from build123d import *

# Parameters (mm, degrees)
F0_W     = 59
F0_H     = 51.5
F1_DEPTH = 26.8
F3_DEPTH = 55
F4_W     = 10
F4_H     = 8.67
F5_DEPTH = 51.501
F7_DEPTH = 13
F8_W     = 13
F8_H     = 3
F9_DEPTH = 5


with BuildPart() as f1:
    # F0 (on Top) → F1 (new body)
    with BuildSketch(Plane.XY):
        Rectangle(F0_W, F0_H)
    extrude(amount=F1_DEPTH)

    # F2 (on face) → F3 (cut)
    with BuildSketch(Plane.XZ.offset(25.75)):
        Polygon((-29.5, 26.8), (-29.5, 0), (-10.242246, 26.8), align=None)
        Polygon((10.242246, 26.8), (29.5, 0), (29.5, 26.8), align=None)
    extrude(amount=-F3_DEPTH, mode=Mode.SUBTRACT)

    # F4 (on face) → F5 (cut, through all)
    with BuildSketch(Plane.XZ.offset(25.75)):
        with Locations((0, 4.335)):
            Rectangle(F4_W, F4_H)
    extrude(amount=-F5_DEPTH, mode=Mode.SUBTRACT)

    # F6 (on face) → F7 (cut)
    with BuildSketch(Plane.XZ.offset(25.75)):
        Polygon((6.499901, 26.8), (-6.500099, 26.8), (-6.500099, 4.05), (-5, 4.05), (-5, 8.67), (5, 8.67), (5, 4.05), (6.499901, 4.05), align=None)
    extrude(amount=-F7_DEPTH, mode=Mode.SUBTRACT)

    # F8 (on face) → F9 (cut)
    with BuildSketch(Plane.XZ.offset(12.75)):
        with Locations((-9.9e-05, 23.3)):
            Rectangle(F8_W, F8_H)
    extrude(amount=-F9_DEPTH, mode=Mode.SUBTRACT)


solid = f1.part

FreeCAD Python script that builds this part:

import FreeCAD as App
import Part
import Sketcher
from FreeCAD import Vector
Q = App.Units.Quantity

doc = App.newDocument("Part")
params = doc.addObject("Spreadsheet::Sheet", "Params")
for row, (alias, value) in enumerate([
    ("sketch1_width", "59 mm"),
    ("sketch1_height", "51.5 mm"),
    ("pad1_length", "26.8 mm"),
    ("sketch2_height", "26.8 mm"),
    ("pocket1_length", "55 mm"),
    ("sketch3_width", "10 mm"),
    ("sketch3_height", "8.67 mm"),
    ("sketch4_width", "13 mm"),
    ("sketch4_width2", "10 mm"),
    ("sketch4_height", "22.75 mm"),
    ("sketch4_height2", "4.62 mm"),
    ("pocket3_length", "13 mm"),
    ("sketch5_width", "13 mm"),
    ("sketch5_height", "3 mm"),
    ("pocket4_length", "5 mm"),
], start=1):
    params.set(f"A{row}", alias)
    params.set(f"B{row}", "=" + value)
    params.setAlias(f"B{row}", alias)

body = doc.addObject("PartDesign::Body", "Body")

# Sketch on XY plane
sketch1 = doc.addObject("Sketcher::SketchObject", "Sketch")
body.addObject(sketch1)
sketch1.AttachmentSupport = (doc.XY_Plane, [""])
sketch1.MapMode = "FlatFace"
sketch1.addGeometry([
    Part.LineSegment(Vector(-30, 26, 0), Vector(-30, -26, 0)),
    Part.LineSegment(Vector(-30, -26, 0), Vector(30, -26, 0)),
    Part.LineSegment(Vector(30, -26, 0), Vector(30, 26, 0)),
    Part.LineSegment(Vector(30, 26, 0), Vector(-30, 26, 0)),
], False)
sketch1.addConstraint([
    Sketcher.Constraint("Coincident", 0, 2, 1, 1),
    Sketcher.Constraint("Coincident", 1, 2, 2, 1),
    Sketcher.Constraint("Coincident", 2, 2, 3, 1),
    Sketcher.Constraint("Coincident", 3, 2, 0, 1),
    Sketcher.Constraint("Vertical", 0),
    Sketcher.Constraint("Horizontal", 1),
    Sketcher.Constraint("Vertical", 2),
    Sketcher.Constraint("Horizontal", 3),
    Sketcher.Constraint("Symmetric", 0, 2, 2, 2, -1, 1),
    Sketcher.Constraint("DistanceX", 1, 1, 1, 2, 59.0),
    Sketcher.Constraint("DistanceY", 0, 2, 0, 1, 51.5),
])
sketch1.setExpression("Constraints[9]", "Params.sketch1_width")
sketch1.setExpression("Constraints[10]", "Params.sketch1_height")
pad1 = doc.addObject("PartDesign::Pad", "Pad")
body.addObject(pad1)
pad1.Profile = sketch1
pad1.setExpression("Length", "Params.pad1_length")

# Sketch on XZ plane
sketch2 = doc.addObject("Sketcher::SketchObject", "Sketch001")
body.addObject(sketch2)
sketch2.AttachmentSupport = (doc.XZ_Plane, [""])
sketch2.MapMode = "FlatFace"
sketch2.AttachmentOffset = App.Placement(Vector(0, 0, 25.75), App.Rotation())
sketch2.addGeometry([
    Part.LineSegment(Vector(-30, 27, 0), Vector(-30, 0, 0)),  # 0
    Part.LineSegment(Vector(-30, 0, 0), Vector(-10, 27, 0)),  # 1
    Part.LineSegment(Vector(-10, 27, 0), Vector(-30, 27, 0)),  # 2
    Part.LineSegment(Vector(10, 27, 0), Vector(30, 0, 0)),  # 3
    Part.LineSegment(Vector(30, 0, 0), Vector(30, 27, 0)),  # 4
    Part.LineSegment(Vector(30, 27, 0), Vector(10, 27, 0)),  # 5
], False)
sketch2.addConstraint([
    Sketcher.Constraint("Coincident", 0, 2, 1, 1),
    Sketcher.Constraint("Coincident", 1, 2, 2, 1),
    Sketcher.Constraint("Coincident", 2, 2, 0, 1),
    Sketcher.Constraint("Coincident", 3, 2, 4, 1),
    Sketcher.Constraint("Coincident", 4, 2, 5, 1),
    Sketcher.Constraint("Coincident", 5, 2, 3, 1),
    Sketcher.Constraint("Vertical", 0),
    Sketcher.Constraint("Horizontal", 2),
    Sketcher.Constraint("Vertical", 4),
    Sketcher.Constraint("Horizontal", 5),
    Sketcher.Constraint("Symmetric", 0, 2, 3, 2, -1, 1),
    Sketcher.Constraint("Symmetric", 1, 2, 5, 2, -2),
    Sketcher.Constraint("PointOnObject", 0, 2, -1),
    Sketcher.Constraint("DistanceY", 0, 2, 0, 1, 26.8),
    Sketcher.Constraint("Angle", 1, Q("54.299999 deg")),
    Sketcher.Constraint("DistanceX", 0, 2, 3, 2, 59.0),
])
sketch2.setExpression("Constraints[13]", "Params.sketch2_height")
pocket1 = doc.addObject("PartDesign::Pocket", "Pocket")
body.addObject(pocket1)
pocket1.Profile = sketch2
pocket1.setExpression("Length", "Params.pocket1_length")

# Sketch on XZ plane
sketch3 = doc.addObject("Sketcher::SketchObject", "Sketch002")
body.addObject(sketch3)
sketch3.AttachmentSupport = (doc.XZ_Plane, [""])
sketch3.MapMode = "FlatFace"
sketch3.AttachmentOffset = App.Placement(Vector(0, 0, 25.75), App.Rotation())
sketch3.addGeometry([
    Part.LineSegment(Vector(-5, 9, 0), Vector(-5, 0, 0)),
    Part.LineSegment(Vector(-5, 0, 0), Vector(5, 0, 0)),
    Part.LineSegment(Vector(5, 0, 0), Vector(5, 9, 0)),
    Part.LineSegment(Vector(5, 9, 0), Vector(-5, 9, 0)),
], False)
sketch3.addConstraint([
    Sketcher.Constraint("Coincident", 0, 2, 1, 1),
    Sketcher.Constraint("Coincident", 1, 2, 2, 1),
    Sketcher.Constraint("Coincident", 2, 2, 3, 1),
    Sketcher.Constraint("Coincident", 3, 2, 0, 1),
    Sketcher.Constraint("Vertical", 0),
    Sketcher.Constraint("Horizontal", 1),
    Sketcher.Constraint("Vertical", 2),
    Sketcher.Constraint("Horizontal", 3),
    Sketcher.Constraint("Symmetric", 0, 2, 1, 2, -1, 1),
    Sketcher.Constraint("DistanceX", 1, 1, 1, 2, 10.0),
    Sketcher.Constraint("DistanceY", 0, 2, 0, 1, 8.67),
])
sketch3.setExpression("Constraints[9]", "Params.sketch3_width")
sketch3.setExpression("Constraints[10]", "Params.sketch3_height")
pocket2 = doc.addObject("PartDesign::Pocket", "Pocket001")
body.addObject(pocket2)
pocket2.Profile = sketch3
pocket2.Type = "ThroughAll"

# Sketch on XZ plane
sketch4 = doc.addObject("Sketcher::SketchObject", "Sketch003")
body.addObject(sketch4)
sketch4.AttachmentSupport = (doc.XZ_Plane, [""])
sketch4.MapMode = "FlatFace"
sketch4.AttachmentOffset = App.Placement(Vector(0, 0, 25.75), App.Rotation())
sketch4.addGeometry([
    Part.LineSegment(Vector(6.5, 26.8, 0), Vector(-6.5, 26.8, 0)),  # 0
    Part.LineSegment(Vector(-6.5, 26.8, 0), Vector(-6.5, 4, 0)),  # 1
    Part.LineSegment(Vector(-6.5, 4, 0), Vector(-5, 4, 0)),  # 2
    Part.LineSegment(Vector(-5, 4, 0), Vector(-5, 8.7, 0)),  # 3
    Part.LineSegment(Vector(-5, 8.7, 0), Vector(5, 8.7, 0)),  # 4
    Part.LineSegment(Vector(5, 8.7, 0), Vector(5, 4, 0)),  # 5
    Part.LineSegment(Vector(5, 4, 0), Vector(6.5, 4, 0)),  # 6
    Part.LineSegment(Vector(6.5, 4, 0), Vector(6.5, 26.8, 0)),  # 7
], False)
sketch4.addConstraint([
    Sketcher.Constraint("Coincident", 0, 2, 1, 1),
    Sketcher.Constraint("Coincident", 1, 2, 2, 1),
    Sketcher.Constraint("Coincident", 2, 2, 3, 1),
    Sketcher.Constraint("Coincident", 3, 2, 4, 1),
    Sketcher.Constraint("Coincident", 4, 2, 5, 1),
    Sketcher.Constraint("Coincident", 5, 2, 6, 1),
    Sketcher.Constraint("Coincident", 6, 2, 7, 1),
    Sketcher.Constraint("Coincident", 7, 2, 0, 1),
    Sketcher.Constraint("Horizontal", 0),
    Sketcher.Constraint("Vertical", 1),
    Sketcher.Constraint("Horizontal", 2),
    Sketcher.Constraint("Vertical", 3),
    Sketcher.Constraint("Horizontal", 4),
    Sketcher.Constraint("Vertical", 5),
    Sketcher.Constraint("Horizontal", 6),
    Sketcher.Constraint("Vertical", 7),
    Sketcher.Constraint("Symmetric", 2, 2, 5, 2, -2),
    Sketcher.Constraint("DistanceX", 0, 2, 0, 1, 13.0),
    Sketcher.Constraint("DistanceX", 4, 1, 4, 2, 10.0),
    Sketcher.Constraint("DistanceY", 1, 2, 1, 1, 22.75),
    Sketcher.Constraint("DistanceY", 3, 1, 3, 2, 4.62),
    Sketcher.Constraint("DistanceY", -1, 1, 0, 2, 26.8),
    Sketcher.Constraint("DistanceX", 2, 1, 2, 2, 1.500099),
])
sketch4.setExpression("Constraints[17]", "Params.sketch4_width")
sketch4.setExpression("Constraints[18]", "Params.sketch4_width2")
sketch4.setExpression("Constraints[19]", "Params.sketch4_height")
sketch4.setExpression("Constraints[20]", "Params.sketch4_height2")
pocket3 = doc.addObject("PartDesign::Pocket", "Pocket002")
body.addObject(pocket3)
pocket3.Profile = sketch4
pocket3.setExpression("Length", "Params.pocket3_length")

# Sketch on XZ plane
sketch5 = doc.addObject("Sketcher::SketchObject", "Sketch004")
body.addObject(sketch5)
sketch5.AttachmentSupport = (doc.XZ_Plane, [""])
sketch5.MapMode = "FlatFace"
sketch5.AttachmentOffset = App.Placement(Vector(0, 0, 12.75), App.Rotation())
sketch5.addGeometry([
    Part.LineSegment(Vector(-6.5, 24.8, 0), Vector(-6.5, 21.8, 0)),
    Part.LineSegment(Vector(-6.5, 21.8, 0), Vector(6.5, 21.8, 0)),
    Part.LineSegment(Vector(6.5, 21.8, 0), Vector(6.5, 24.8, 0)),
    Part.LineSegment(Vector(6.5, 24.8, 0), Vector(-6.5, 24.8, 0)),
], False)
sketch5.addConstraint([
    Sketcher.Constraint("Coincident", 0, 2, 1, 1),
    Sketcher.Constraint("Coincident", 1, 2, 2, 1),
    Sketcher.Constraint("Coincident", 2, 2, 3, 1),
    Sketcher.Constraint("Coincident", 3, 2, 0, 1),
    Sketcher.Constraint("Vertical", 0),
    Sketcher.Constraint("Horizontal", 1),
    Sketcher.Constraint("Vertical", 2),
    Sketcher.Constraint("Horizontal", 3),
    Sketcher.Constraint("DistanceX", 1, 1, 1, 2, 13.0),
    Sketcher.Constraint("DistanceY", 0, 2, 0, 1, 3.0),
    Sketcher.Constraint("DistanceY", -1, 1, 0, 2, 21.8),
    Sketcher.Constraint("DistanceX", 0, 2, -1, 1, 6.500099),
])
sketch5.setExpression("Constraints[8]", "Params.sketch5_width")
sketch5.setExpression("Constraints[9]", "Params.sketch5_height")
pocket4 = doc.addObject("PartDesign::Pocket", "Pocket003")
body.addObject(pocket4)
pocket4.Profile = sketch5
pocket4.setExpression("Length", "Params.pocket4_length")

doc.recompute()
